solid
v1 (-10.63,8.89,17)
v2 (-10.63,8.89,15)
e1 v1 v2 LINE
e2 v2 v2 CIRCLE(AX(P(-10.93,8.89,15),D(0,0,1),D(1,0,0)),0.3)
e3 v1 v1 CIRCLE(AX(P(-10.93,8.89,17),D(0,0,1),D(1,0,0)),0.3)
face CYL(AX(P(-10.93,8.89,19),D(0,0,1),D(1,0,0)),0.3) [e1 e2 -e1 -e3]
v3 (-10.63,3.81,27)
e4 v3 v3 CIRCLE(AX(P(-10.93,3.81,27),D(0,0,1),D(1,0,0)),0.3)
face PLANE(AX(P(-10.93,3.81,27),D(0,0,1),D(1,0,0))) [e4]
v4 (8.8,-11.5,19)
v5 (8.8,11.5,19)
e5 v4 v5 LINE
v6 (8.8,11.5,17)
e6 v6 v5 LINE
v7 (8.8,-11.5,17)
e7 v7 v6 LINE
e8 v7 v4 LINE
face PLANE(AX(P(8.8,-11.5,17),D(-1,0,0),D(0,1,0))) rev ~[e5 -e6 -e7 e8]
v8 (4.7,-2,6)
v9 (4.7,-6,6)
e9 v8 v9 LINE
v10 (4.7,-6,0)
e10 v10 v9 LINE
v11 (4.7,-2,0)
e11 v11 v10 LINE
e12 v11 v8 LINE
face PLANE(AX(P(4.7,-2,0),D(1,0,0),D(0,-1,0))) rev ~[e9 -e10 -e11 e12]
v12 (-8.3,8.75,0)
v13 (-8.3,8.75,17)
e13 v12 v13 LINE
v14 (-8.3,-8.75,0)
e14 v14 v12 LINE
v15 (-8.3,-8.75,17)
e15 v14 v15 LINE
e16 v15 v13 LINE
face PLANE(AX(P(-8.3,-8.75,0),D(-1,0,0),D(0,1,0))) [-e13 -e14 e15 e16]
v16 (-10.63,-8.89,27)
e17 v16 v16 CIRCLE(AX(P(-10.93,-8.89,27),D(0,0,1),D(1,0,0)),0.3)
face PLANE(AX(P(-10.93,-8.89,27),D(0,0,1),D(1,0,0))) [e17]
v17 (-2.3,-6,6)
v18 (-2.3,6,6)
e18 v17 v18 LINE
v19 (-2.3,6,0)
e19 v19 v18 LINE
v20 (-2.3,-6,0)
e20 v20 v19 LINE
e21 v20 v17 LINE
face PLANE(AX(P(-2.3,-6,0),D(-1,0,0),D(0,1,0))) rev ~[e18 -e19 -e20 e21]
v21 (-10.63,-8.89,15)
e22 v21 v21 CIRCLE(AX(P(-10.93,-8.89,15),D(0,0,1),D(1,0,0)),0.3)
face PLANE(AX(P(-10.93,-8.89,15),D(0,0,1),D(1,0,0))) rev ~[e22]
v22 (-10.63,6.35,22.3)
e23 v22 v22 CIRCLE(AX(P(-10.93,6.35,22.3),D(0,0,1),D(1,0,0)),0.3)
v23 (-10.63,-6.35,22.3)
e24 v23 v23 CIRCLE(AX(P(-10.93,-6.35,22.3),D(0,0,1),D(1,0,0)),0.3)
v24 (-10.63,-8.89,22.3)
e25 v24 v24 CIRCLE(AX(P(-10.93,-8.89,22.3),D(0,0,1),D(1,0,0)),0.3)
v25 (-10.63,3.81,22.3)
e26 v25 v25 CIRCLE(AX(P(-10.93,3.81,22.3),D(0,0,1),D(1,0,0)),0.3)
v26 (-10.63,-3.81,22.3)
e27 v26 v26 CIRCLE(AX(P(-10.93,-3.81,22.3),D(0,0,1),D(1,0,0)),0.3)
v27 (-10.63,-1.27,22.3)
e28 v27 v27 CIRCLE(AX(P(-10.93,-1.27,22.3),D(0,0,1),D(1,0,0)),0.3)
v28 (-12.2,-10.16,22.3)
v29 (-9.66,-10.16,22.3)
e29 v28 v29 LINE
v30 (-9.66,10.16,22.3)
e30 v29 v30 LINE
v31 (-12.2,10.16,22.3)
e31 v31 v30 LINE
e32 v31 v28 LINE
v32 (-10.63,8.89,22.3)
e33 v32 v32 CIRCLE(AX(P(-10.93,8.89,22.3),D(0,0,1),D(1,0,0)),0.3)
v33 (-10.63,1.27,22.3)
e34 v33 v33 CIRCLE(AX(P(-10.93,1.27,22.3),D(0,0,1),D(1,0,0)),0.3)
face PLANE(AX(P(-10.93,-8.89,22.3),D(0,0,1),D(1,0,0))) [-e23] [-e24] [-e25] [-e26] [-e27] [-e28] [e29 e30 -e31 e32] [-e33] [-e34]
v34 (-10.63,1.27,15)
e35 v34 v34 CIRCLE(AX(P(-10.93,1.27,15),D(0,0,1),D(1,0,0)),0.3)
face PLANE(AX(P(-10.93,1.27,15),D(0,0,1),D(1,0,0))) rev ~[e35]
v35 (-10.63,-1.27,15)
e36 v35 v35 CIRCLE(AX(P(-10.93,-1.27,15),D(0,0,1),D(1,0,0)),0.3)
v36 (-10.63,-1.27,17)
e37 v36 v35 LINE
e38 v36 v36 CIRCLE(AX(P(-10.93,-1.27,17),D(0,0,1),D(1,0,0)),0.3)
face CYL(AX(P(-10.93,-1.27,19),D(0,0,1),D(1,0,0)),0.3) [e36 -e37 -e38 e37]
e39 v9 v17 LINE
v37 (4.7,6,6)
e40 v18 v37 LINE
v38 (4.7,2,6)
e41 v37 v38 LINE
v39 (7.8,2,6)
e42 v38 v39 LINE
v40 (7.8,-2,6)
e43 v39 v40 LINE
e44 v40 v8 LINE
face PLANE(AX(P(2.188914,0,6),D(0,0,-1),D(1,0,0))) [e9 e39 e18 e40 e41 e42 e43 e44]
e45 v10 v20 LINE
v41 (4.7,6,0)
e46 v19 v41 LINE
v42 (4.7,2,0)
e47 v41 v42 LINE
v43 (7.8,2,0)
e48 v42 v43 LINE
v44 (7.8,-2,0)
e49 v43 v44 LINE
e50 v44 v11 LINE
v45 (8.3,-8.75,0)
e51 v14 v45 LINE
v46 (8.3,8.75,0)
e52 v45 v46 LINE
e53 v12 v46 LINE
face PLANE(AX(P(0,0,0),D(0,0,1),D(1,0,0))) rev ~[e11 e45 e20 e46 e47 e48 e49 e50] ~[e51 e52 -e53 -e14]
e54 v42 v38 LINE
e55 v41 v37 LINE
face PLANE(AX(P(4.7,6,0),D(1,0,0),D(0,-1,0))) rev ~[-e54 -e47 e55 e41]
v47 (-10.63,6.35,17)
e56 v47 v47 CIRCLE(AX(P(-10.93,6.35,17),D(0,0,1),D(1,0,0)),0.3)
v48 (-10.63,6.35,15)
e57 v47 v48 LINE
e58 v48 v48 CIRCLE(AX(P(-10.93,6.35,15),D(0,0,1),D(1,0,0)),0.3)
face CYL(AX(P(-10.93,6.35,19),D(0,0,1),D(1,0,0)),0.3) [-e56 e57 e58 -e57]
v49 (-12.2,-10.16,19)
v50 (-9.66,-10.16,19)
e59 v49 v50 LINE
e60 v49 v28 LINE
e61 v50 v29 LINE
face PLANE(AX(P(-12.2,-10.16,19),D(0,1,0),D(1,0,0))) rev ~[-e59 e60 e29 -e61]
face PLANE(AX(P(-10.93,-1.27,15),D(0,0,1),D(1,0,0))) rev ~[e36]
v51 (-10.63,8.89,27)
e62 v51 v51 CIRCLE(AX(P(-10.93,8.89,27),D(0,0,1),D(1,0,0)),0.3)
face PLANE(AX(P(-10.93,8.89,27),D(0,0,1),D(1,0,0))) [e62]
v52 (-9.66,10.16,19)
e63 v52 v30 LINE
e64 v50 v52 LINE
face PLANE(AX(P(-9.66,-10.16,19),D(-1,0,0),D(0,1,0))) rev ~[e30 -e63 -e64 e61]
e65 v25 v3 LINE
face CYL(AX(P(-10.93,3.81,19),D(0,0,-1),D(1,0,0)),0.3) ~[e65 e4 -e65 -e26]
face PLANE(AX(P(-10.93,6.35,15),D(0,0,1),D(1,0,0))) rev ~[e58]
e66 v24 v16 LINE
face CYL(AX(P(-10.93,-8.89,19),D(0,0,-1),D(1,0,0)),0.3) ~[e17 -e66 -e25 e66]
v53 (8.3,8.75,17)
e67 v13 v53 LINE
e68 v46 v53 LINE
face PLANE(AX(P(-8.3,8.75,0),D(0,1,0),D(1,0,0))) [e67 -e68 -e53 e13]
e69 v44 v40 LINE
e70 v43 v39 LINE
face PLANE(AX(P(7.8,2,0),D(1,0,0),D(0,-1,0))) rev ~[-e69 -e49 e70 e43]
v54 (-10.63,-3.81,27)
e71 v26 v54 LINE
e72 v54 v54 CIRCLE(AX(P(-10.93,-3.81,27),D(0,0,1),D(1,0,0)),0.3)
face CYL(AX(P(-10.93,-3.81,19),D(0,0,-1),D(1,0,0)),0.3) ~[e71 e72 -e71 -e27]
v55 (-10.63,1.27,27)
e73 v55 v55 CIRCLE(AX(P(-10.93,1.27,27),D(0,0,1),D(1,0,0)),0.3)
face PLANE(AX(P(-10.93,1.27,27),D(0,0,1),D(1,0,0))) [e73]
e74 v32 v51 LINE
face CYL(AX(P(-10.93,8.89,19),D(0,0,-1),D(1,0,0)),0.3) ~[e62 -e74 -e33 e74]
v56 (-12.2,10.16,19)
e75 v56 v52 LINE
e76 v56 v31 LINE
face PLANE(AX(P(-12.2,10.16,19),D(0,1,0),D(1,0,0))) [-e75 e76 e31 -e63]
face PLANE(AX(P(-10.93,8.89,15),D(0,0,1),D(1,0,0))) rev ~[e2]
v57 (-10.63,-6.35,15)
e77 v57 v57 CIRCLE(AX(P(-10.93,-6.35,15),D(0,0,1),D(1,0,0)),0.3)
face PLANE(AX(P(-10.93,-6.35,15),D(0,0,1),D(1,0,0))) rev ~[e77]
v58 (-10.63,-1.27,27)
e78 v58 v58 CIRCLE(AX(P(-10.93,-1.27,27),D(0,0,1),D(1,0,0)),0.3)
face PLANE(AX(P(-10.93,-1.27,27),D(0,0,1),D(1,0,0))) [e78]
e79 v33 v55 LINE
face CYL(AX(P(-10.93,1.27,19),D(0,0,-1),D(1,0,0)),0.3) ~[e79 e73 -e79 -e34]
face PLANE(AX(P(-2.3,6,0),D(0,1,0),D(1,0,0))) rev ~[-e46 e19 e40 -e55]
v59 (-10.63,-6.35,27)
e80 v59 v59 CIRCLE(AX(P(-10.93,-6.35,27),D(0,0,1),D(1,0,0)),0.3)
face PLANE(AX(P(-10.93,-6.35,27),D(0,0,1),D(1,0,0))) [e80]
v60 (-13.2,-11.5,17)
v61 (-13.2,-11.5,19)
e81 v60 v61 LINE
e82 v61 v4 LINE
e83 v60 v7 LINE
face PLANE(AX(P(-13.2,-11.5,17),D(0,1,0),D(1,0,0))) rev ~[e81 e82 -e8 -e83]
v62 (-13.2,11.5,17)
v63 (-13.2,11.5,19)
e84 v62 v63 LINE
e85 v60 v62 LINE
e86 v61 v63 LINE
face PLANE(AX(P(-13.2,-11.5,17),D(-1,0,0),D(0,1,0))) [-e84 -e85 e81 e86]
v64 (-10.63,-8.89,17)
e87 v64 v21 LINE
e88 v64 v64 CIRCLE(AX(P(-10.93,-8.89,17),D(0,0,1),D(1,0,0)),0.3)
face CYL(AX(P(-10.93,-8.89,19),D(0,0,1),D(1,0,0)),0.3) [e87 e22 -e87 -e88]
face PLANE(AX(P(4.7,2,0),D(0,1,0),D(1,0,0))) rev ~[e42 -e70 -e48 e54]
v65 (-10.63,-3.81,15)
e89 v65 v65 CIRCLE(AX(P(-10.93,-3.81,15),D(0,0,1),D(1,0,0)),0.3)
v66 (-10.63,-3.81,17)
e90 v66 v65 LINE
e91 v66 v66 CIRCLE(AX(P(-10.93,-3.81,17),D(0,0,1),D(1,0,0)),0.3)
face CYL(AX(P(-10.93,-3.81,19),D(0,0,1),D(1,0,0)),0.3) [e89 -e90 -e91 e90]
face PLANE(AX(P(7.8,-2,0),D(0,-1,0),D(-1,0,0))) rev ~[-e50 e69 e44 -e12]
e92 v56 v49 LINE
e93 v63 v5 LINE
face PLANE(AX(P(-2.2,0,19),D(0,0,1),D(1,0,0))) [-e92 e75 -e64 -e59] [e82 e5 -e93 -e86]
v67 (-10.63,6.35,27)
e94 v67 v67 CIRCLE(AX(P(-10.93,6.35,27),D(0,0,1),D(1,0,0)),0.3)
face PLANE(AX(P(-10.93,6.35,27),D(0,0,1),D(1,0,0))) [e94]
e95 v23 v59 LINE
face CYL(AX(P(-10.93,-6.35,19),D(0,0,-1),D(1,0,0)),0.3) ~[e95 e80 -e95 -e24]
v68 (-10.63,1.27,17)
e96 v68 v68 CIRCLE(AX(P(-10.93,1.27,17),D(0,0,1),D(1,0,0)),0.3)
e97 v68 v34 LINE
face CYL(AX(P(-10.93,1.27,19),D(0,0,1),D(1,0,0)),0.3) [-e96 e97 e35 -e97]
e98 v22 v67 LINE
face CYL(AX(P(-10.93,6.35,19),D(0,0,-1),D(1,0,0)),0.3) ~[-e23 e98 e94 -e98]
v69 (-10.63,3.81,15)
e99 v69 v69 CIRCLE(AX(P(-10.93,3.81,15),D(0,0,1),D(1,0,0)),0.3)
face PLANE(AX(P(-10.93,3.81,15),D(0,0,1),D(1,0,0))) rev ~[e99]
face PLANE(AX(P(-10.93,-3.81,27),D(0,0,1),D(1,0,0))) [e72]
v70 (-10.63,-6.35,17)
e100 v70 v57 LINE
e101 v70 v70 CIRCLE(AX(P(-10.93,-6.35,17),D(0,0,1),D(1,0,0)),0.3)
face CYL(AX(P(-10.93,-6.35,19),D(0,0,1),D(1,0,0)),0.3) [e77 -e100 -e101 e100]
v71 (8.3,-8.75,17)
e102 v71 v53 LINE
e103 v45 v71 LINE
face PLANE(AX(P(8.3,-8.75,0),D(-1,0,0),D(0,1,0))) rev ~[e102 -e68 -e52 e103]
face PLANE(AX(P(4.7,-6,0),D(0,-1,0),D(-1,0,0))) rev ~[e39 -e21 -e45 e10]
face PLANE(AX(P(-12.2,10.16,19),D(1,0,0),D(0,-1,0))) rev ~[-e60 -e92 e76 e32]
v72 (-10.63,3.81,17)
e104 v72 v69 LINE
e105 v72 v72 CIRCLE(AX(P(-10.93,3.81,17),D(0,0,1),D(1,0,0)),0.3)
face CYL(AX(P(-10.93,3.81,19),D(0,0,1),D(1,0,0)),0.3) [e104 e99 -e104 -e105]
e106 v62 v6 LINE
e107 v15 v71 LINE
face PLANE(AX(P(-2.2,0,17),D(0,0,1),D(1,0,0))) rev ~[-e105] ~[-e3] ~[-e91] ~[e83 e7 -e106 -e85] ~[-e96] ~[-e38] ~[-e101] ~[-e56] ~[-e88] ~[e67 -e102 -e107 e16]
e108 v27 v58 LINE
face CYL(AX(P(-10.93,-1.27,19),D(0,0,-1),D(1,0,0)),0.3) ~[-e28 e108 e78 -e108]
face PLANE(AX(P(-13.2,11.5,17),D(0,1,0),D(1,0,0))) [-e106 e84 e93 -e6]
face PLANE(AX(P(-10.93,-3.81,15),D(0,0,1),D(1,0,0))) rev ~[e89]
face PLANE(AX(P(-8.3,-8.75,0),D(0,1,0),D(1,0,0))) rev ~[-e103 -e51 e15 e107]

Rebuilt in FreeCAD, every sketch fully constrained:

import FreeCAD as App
import Part
import Sketcher
Q = App.Units.Quantity


def add_polygon(sketch, points):
    """Adds a closed chain of lines whose ends are joined by coincident constraints."""
    first, n = sketch.GeometryCount, len(points)
    for a, b in zip(points, points[1:] + points[:1]):
        sketch.addGeometry(Part.LineSegment(App.Vector(*a, 0), App.Vector(*b, 0)), False)
    for i in range(n):
        sketch.addConstraint(Sketcher.Constraint("Coincident", first + i, 2, first + (i + 1) % n, 1))

doc = App.newDocument("Part")
body = doc.addObject("PartDesign::Body", "Body")

# Sketch on XY plane
sketch1 = body.newObject("Sketcher::SketchObject", "Sketch")
sketch1.AttachmentSupport = (doc.getObject("XY_Plane"), [""])
sketch1.MapMode = "FlatFace"
add_polygon(sketch1, [(-8, 9), (-8, -9), (8, -9), (8, 9)])  # lines 0-3
sketch1.addConstraint(Sketcher.Constraint("Vertical", 0))
sketch1.addConstraint(Sketcher.Constraint("Horizontal", 1))
sketch1.addConstraint(Sketcher.Constraint("Vertical", 2))
sketch1.addConstraint(Sketcher.Constraint("Horizontal", 3))
sketch1.addConstraint(Sketcher.Constraint("Symmetric", 0, 2, 2, 2, -1, 1))
sketch1.addConstraint(Sketcher.Constraint("DistanceX", 1, 1, 1, 2, Q("16.6 mm")))
sketch1.addConstraint(Sketcher.Constraint("DistanceY", 0, 2, 0, 1, Q("17.5 mm")))
pad1 = body.newObject("PartDesign::Pad", "Pad")
pad1.Profile = sketch1
pad1.Length = 17

# Sketch on XY plane
sketch2 = body.newObject("Sketcher::SketchObject", "Sketch001")
sketch2.AttachmentSupport = (doc.getObject("XY_Plane"), [""])
sketch2.MapMode = "FlatFace"
add_polygon(sketch2, [(7.8, 2), (7.8, -2), (4.7, -2), (4.7, -6), (-2.3, -6), (-2.3, 6), (4.7, 6), (4.7, 2)])  # lines 0-7
sketch2.addConstraint(Sketcher.Constraint("Vertical", 0))
sketch2.addConstraint(Sketcher.Constraint("Horizontal", 1))
sketch2.addConstraint(Sketcher.Constraint("Vertical", 2))
sketch2.addConstraint(Sketcher.Constraint("Horizontal", 3))
sketch2.addConstraint(Sketcher.Constraint("Vertical", 4))
sketch2.addConstraint(Sketcher.Constraint("Horizontal", 5))
sketch2.addConstraint(Sketcher.Constraint("Vertical", 6))
sketch2.addConstraint(Sketcher.Constraint("Horizontal", 7))
sketch2.addConstraint(Sketcher.Constraint("Symmetric", 2, 2, 5, 2, -1))
sketch2.addConstraint(Sketcher.Constraint("Equal", 0, 2))
sketch2.addConstraint(Sketcher.Constraint("Equal", 2, 6))
sketch2.addConstraint(Sketcher.Constraint("DistanceX", 3, 2, 3, 1, Q("7 mm")))
sketch2.addConstraint(Sketcher.Constraint("DistanceY", 0, 2, 0, 1, Q("4 mm")))
sketch2.addConstraint(Sketcher.Constraint("DistanceX", 1, 2, 1, 1, Q("3.1 mm")))
sketch2.addConstraint(Sketcher.Constraint("DistanceX", -1, 1, 0, 2, Q("7.8 mm")))
pocket1 = body.newObject("PartDesign::Pocket", "Pocket")
pocket1.Profile = sketch2
pocket1.Length = 6
pocket1.Reversed = True

# Sketch on XY plane
sketch3 = body.newObject("Sketcher::SketchObject", "Sketch002")
sketch3.AttachmentSupport = (doc.getObject("XY_Plane"), [""])
sketch3.MapMode = "FlatFace"
sketch3.AttachmentOffset = App.Placement(App.Vector(0, 0, 17), App.Rotation())
add_polygon(sketch3, [(-13, 12), (-13, -12), (9, -12), (9, 12)])  # lines 0-3
sketch3.addConstraint(Sketcher.Constraint("Vertical", 0))
sketch3.addConstraint(Sketcher.Constraint("Horizontal", 1))
sketch3.addConstraint(Sketcher.Constraint("Vertical", 2))
sketch3.addConstraint(Sketcher.Constraint("Horizontal", 3))
sketch3.addConstraint(Sketcher.Constraint("DistanceX", 1, 1, 1, 2, Q("22 mm")))
sketch3.addConstraint(Sketcher.Constraint("DistanceY", 0, 2, 0, 1, Q("23 mm")))
sketch3.addConstraint(Sketcher.Constraint("DistanceX", 0, 2, -1, 1, Q("13.2 mm")))
sketch3.addConstraint(Sketcher.Constraint("DistanceY", 0, 2, -1, 1, Q("11.5 mm")))
pad2 = body.newObject("PartDesign::Pad", "Pad001")
pad2.Profile = sketch3
pad2.Length = 2

# Sketch on XY plane
sketch4 = body.newObject("Sketcher::SketchObject", "Sketch003")
sketch4.AttachmentSupport = (doc.getObject("XY_Plane"), [""])
sketch4.MapMode = "FlatFace"
sketch4.AttachmentOffset = App.Placement(App.Vector(0, 0, 19), App.Rotation())
add_polygon(sketch4, [(-12.2, -10.16), (-9.66, -10.16), (-9.66, 10.16), (-12.2, 10.16)])  # lines 0-3
sketch4.addGeometry(Part.Circle(App.Vector(-10.93, -8.89, 0), App.Vector(0, 0, 1), 0.3), False)  # 4
sketch4.addGeometry(Part.Circle(App.Vector(-10.93, -6.35, 0), App.Vector(0, 0, 1), 0.3), False)  # 5
sketch4.addGeometry(Part.Circle(App.Vector(-10.93, -3.81, 0), App.Vector(0, 0, 1), 0.3), False)  # 6
sketch4.addGeometry(Part.Circle(App.Vector(-10.93, -1.27, 0), App.Vector(0, 0, 1), 0.3), False)  # 7
sketch4.addGeometry(Part.Circle(App.Vector(-10.93, 1.27, 0), App.Vector(0, 0, 1), 0.3), False)  # 8
sketch4.addGeometry(Part.Circle(App.Vector(-10.93, 3.81, 0), App.Vector(0, 0, 1), 0.3), False)  # 9
sketch4.addGeometry(Part.Circle(App.Vector(-10.93, 6.35, 0), App.Vector(0, 0, 1), 0.3), False)  # 10
sketch4.addGeometry(Part.Circle(App.Vector(-10.93, 8.89, 0), App.Vector(0, 0, 1), 0.3), False)  # 11
sketch4.addConstraint(Sketcher.Constraint("Horizontal", 0))
sketch4.addConstraint(Sketcher.Constraint("Vertical", 1))
sketch4.addConstraint(Sketcher.Constraint("Horizontal", 2))
sketch4.addConstraint(Sketcher.Constraint("Vertical", 3))
sketch4.addConstraint(Sketcher.Constraint("Equal", 4, 5))
sketch4.addConstraint(Sketcher.Constraint("Equal", 5, 6))
sketch4.addConstraint(Sketcher.Constraint("Equal", 6, 7))
sketch4.addConstraint(Sketcher.Constraint("Equal", 7, 8))
sketch4.addConstraint(Sketcher.Constraint("Equal", 8, 9))
sketch4.addConstraint(Sketcher.Constraint("Equal", 9, 10))
sketch4.addConstraint(Sketcher.Constraint("Equal", 10, 11))
sketch4.addConstraint(Sketcher.Constraint("Symmetric", 7, 3, 8, 3, -1))
sketch4.addConstraint(Sketcher.Constraint("Symmetric", 6, 3, 9, 3, -1))
sketch4.addConstraint(Sketcher.Constraint("Symmetric", 5, 3, 10, 3, -1))
sketch4.addConstraint(Sketcher.Constraint("Symmetric", 4, 3, 11, 3, -1))
sketch4.addConstraint(Sketcher.Constraint("Vertical", 4, 3, 5, 3))
sketch4.addConstraint(Sketcher.Constraint("Vertical", 5, 3, 6, 3))
sketch4.addConstraint(Sketcher.Constraint("Vertical", 6, 3, 7, 3))
sketch4.addConstraint(Sketcher.Constraint("Diameter", 4, Q("0.6 mm")))
sketch4.addConstraint(Sketcher.Constraint("DistanceX", 0, 1, 0, 2, Q("2.54 mm")))
sketch4.addConstraint(Sketcher.Constraint("DistanceY", 1, 1, 1, 2, Q("20.32 mm")))
sketch4.addConstraint(Sketcher.Constraint("DistanceX", 2, 2, -1, 1, Q("12.2 mm")))
sketch4.addConstraint(Sketcher.Constraint("DistanceY", 4, 3, 9, 3, Q("12.7 mm")))
sketch4.addConstraint(Sketcher.Constraint("DistanceY", 5, 3, 10, 3, Q("12.7 mm")))
sketch4.addConstraint(Sketcher.Constraint("DistanceX", 4, 3, -1, 1, Q("10.93 mm")))
sketch4.addConstraint(Sketcher.Constraint("DistanceY", 4, 3, -1, 1, Q("8.89 mm")))
sketch4.addConstraint(Sketcher.Constraint("DistanceY", 7, 3, -1, 1, Q("1.27 mm")))
sketch4.addConstraint(Sketcher.Constraint("DistanceY", 0, 2, -1, 1, Q("10.16 mm")))
pad3 = body.newObject("PartDesign::Pad", "Pad002")
pad3.Profile = sketch4
pad3.Length = 3.3

# Sketch on XY plane
sketch5 = body.newObject("Sketcher::SketchObject", "Sketch004")
sketch5.AttachmentSupport = (doc.getObject("XY_Plane"), [""])
sketch5.MapMode = "FlatFace"
sketch5.AttachmentOffset = App.Placement(App.Vector(0, 0, 19), App.Rotation())
sketch5.addGeometry(Part.Circle(App.Vector(-10.93, -8.89, 0), App.Vector(0, 0, 1), 0.3), False)
sketch5.addGeometry(Part.Circle(App.Vector(-10.93, -6.35, 0), App.Vector(0, 0, 1), 0.3), False)
sketch5.addGeometry(Part.Circle(App.Vector(-10.93, -3.81, 0), App.Vector(0, 0, 1), 0.3), False)
sketch5.addGeometry(Part.Circle(App.Vector(-10.93, -1.27, 0), App.Vector(0, 0, 1), 0.3), False)
sketch5.addGeometry(Part.Circle(App.Vector(-10.93, 1.27, 0), App.Vector(0, 0, 1), 0.3), False)
sketch5.addGeometry(Part.Circle(App.Vector(-10.93, 3.81, 0), App.Vector(0, 0, 1), 0.3), False)
sketch5.addGeometry(Part.Circle(App.Vector(-10.93, 6.35, 0), App.Vector(0, 0, 1), 0.3), False)
sketch5.addGeometry(Part.Circle(App.Vector(-10.93, 8.89, 0), App.Vector(0, 0, 1), 0.3), False)
sketch5.addConstraint(Sketcher.Constraint("Equal", 0, 1))
sketch5.addConstraint(Sketcher.Constraint("Equal", 1, 2))
sketch5.addConstraint(Sketcher.Constraint("Equal", 2, 3))
sketch5.addConstraint(Sketcher.Constraint("Equal", 3, 4))
sketch5.addConstraint(Sketcher.Constraint("Equal", 4, 5))
sketch5.addConstraint(Sketcher.Constraint("Equal", 5, 6))
sketch5.addConstraint(Sketcher.Constraint("Equal", 6, 7))
sketch5.addConstraint(Sketcher.Constraint("Symmetric", 3, 3, 4, 3, -1))
sketch5.addConstraint(Sketcher.Constraint("Symmetric", 2, 3, 5, 3, -1))
sketch5.addConstraint(Sketcher.Constraint("Symmetric", 1, 3, 6, 3, -1))
sketch5.addConstraint(Sketcher.Constraint("Symmetric", 0, 3, 7, 3, -1))
sketch5.addConstraint(Sketcher.Constraint("Vertical", 0, 3, 1, 3))
sketch5.addConstraint(Sketcher.Constraint("Vertical", 1, 3, 2, 3))
sketch5.addConstraint(Sketcher.Constraint("Vertical", 2, 3, 3, 3))
sketch5.addConstraint(Sketcher.Constraint("Diameter", 0, Q("0.6 mm")))
sketch5.addConstraint(Sketcher.Constraint("DistanceY", 0, 3, 5, 3, Q("12.7 mm")))
sketch5.addConstraint(Sketcher.Constraint("DistanceY", 1, 3, 6, 3, Q("12.7 mm")))
sketch5.addConstraint(Sketcher.Constraint("DistanceX", 0, 3, -1, 1, Q("10.93 mm")))
sketch5.addConstraint(Sketcher.Constraint("DistanceY", 0, 3, -1, 1, Q("8.89 mm")))
sketch5.addConstraint(Sketcher.Constraint("DistanceY", 3, 3, -1, 1, Q("1.27 mm")))
pad4 = body.newObject("PartDesign::Pad", "Pad003")
pad4.Profile = sketch5
pad4.Type = "TwoLengths"
pad4.Length = 8
pad4.Length2 = 4

doc.recompute()
